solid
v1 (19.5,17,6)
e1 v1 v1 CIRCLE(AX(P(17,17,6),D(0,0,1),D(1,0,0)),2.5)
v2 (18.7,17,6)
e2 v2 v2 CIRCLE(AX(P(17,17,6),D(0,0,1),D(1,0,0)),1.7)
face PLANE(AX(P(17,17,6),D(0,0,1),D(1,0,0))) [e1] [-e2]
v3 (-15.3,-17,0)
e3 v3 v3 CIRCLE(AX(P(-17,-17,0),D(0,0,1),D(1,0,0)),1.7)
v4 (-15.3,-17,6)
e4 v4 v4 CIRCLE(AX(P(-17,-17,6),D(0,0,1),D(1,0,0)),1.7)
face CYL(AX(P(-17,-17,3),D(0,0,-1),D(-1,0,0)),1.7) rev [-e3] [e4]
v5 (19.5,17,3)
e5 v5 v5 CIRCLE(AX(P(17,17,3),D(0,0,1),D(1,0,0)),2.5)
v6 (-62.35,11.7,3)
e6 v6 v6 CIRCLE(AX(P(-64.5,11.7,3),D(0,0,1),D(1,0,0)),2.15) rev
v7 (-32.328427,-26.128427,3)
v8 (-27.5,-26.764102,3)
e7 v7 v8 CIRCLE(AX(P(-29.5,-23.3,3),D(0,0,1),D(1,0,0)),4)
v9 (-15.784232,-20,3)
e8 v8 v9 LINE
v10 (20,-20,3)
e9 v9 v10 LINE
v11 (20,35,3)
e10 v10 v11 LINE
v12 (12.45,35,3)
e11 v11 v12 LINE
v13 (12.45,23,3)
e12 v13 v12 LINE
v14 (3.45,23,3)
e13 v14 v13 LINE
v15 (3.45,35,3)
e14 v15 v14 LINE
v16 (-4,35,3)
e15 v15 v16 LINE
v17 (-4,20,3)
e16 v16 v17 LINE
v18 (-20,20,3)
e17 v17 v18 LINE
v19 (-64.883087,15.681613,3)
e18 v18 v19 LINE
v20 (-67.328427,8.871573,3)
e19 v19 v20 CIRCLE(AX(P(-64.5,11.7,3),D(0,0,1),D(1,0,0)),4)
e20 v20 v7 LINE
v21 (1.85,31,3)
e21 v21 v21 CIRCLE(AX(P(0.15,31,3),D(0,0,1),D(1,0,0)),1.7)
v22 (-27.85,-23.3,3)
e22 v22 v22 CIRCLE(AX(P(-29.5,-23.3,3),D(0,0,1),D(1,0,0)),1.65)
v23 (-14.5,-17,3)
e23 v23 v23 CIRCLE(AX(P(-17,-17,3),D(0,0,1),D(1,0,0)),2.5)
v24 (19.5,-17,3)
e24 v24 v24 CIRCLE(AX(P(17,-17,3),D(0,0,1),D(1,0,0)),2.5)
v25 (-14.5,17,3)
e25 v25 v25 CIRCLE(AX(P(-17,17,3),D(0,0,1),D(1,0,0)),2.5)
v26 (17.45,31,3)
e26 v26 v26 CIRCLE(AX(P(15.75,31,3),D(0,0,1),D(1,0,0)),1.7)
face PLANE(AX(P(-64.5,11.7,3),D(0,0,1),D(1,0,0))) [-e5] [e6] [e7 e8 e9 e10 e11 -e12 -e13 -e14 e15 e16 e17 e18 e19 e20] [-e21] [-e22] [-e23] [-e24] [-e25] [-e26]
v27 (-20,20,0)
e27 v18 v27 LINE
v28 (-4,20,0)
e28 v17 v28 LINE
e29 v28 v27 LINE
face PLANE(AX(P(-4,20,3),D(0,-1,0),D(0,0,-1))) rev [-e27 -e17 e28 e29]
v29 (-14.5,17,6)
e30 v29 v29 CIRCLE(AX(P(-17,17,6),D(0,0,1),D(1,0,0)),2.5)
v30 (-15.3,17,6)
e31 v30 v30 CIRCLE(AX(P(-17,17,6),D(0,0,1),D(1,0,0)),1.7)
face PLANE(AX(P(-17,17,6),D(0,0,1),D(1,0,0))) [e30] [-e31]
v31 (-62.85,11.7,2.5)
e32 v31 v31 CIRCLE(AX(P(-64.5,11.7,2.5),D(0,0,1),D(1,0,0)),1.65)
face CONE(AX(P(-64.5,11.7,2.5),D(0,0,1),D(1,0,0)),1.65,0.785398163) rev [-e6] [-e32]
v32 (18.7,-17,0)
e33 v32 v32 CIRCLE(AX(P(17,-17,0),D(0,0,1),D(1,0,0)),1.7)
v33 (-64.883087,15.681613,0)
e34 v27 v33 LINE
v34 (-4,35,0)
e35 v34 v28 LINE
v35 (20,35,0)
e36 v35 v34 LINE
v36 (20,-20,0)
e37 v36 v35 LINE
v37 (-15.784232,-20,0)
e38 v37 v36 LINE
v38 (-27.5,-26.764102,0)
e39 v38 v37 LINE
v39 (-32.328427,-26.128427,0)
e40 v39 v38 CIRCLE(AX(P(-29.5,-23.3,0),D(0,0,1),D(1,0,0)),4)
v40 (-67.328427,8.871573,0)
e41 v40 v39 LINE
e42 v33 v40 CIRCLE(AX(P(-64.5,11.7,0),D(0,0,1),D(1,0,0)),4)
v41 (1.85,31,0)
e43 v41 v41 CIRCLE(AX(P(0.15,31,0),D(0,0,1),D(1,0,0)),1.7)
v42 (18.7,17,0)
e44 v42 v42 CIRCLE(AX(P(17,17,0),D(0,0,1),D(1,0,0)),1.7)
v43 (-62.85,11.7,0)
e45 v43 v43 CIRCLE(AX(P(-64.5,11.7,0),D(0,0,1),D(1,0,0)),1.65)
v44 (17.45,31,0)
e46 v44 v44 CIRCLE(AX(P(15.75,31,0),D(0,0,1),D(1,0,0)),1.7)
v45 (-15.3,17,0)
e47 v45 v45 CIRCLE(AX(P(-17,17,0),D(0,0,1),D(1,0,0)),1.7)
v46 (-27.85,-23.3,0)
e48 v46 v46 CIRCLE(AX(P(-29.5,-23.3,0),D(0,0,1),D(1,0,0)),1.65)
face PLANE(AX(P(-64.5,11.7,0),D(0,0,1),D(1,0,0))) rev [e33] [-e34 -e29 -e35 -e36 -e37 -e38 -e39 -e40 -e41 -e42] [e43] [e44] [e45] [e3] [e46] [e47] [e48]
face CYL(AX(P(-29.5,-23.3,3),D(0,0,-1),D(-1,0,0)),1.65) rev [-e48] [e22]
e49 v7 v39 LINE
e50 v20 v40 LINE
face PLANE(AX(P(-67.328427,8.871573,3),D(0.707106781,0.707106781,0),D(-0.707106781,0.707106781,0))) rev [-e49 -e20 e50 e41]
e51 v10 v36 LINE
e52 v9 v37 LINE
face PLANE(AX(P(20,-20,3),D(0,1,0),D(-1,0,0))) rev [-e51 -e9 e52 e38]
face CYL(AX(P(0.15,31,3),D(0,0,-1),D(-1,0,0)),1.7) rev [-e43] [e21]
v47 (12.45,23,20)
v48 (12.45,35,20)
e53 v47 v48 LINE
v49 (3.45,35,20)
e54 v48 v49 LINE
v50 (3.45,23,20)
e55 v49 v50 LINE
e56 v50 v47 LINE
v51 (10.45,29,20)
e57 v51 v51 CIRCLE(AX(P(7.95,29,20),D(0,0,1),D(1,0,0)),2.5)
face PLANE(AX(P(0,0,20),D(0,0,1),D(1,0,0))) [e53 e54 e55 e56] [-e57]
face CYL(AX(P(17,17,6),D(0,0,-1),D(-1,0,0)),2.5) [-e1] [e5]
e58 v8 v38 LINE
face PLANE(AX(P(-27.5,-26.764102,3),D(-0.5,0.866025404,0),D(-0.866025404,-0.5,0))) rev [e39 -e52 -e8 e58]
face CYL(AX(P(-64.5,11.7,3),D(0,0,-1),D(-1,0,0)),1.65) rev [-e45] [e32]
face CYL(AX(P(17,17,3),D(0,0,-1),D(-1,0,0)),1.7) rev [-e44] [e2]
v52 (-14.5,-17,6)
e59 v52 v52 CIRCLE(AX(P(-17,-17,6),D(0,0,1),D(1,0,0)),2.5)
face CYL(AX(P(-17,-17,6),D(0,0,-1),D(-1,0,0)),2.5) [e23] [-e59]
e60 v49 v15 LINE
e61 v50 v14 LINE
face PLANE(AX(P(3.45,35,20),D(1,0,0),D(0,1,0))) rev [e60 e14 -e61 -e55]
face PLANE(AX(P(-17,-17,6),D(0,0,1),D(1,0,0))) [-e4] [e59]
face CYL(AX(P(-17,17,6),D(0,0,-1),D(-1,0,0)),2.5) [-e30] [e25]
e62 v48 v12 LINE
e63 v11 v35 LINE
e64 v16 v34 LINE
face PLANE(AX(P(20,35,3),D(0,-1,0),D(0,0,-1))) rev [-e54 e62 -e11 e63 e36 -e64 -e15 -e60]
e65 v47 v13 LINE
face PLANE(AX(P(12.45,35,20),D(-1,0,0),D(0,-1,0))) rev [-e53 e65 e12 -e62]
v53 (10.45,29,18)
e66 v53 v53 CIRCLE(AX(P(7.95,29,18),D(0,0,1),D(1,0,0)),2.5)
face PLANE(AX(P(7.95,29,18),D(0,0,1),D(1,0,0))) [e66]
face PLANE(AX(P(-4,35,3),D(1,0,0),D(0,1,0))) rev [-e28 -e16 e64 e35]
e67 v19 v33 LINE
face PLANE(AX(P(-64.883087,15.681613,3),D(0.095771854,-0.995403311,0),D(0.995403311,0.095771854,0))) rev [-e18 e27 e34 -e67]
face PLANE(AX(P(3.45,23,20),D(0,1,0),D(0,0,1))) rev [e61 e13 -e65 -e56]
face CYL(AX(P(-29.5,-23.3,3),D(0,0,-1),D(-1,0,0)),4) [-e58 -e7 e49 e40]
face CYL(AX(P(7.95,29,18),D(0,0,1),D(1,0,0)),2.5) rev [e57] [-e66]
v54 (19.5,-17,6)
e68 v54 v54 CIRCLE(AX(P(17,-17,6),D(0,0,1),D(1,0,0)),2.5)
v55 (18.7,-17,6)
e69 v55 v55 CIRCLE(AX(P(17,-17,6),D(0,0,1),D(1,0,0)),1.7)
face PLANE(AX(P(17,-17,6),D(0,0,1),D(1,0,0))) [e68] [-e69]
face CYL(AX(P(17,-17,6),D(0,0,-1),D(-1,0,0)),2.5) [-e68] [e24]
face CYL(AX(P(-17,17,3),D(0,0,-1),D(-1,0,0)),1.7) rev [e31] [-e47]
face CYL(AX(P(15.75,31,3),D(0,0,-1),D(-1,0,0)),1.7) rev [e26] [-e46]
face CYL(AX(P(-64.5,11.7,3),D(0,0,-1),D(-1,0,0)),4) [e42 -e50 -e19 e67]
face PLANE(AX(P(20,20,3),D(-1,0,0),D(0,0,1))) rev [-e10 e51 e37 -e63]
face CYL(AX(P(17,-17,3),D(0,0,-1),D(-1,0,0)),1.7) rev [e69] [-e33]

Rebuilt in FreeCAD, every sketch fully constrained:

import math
import FreeCAD as App
import Part
import Sketcher
from FreeCAD import Vector
Q = App.Units.Quantity


def edges_at(feature, points):
    """Names of the edges that pass closest to the given points."""
    edges = feature.Shape.Edges
    near = lambda p: min(range(len(edges)), key=lambda i: edges[i].distToShape(Part.Vertex(*p))[0])
    return sorted({f"Edge{near(p) + 1}" for p in points})


def add_polygon(sketch, points):
    """Adds a closed chain of lines whose ends are joined by coincident constraints."""
    first, n = sketch.GeometryCount, len(points)
    for a, b in zip(points, points[1:] + points[:1]):
        sketch.addGeometry(Part.LineSegment(App.Vector(*a, 0), App.Vector(*b, 0)), False)
    for i in range(n):
        sketch.addConstraint(Sketcher.Constraint("Coincident", first + i, 2, first + (i + 1) % n, 1))

doc = App.newDocument("Part")
params = doc.addObject("Spreadsheet::Sheet", "Params")
for row, (alias, value) in enumerate([
    ("sketch1_radius", "4 mm"),
    ("sketch1_diameter", "3.4 mm"),
    ("sketch1_diameter2", "3.3 mm"),
    ("sketch1_width", "24 mm"),
    ("sketch1_width2", "16 mm"),
    ("pad1_length", "3 mm"),
    ("chamfer_size", "0.5 mm"),
    ("sketch2_width", "9 mm"),
    ("sketch2_height", "12 mm"),
    ("pad2_length", "17 mm"),
    ("sketch3_diameter", "5 mm"),
    ("pocket1_length", "2 mm"),
    ("sketch4_diameter", "5 mm"),
    ("sketch4_diameter2", "3.4 mm"),
    ("pad3_length", "3 mm"),
], start=1):
    params.set(f"A{row}", alias)
    params.set(f"B{row}", "=" + value)
    params.setAlias(f"B{row}", alias)

body = doc.addObject("PartDesign::Body", "Body")

# Sketch on XY plane
sketch1 = body.newObject("Sketcher::SketchObject", "Sketch")
sketch1.AttachmentSupport = (doc.getObject("XY_Plane"), [""])
sketch1.MapMode = "FlatFace"
sketch1.addGeometry([
    Part.LineSegment(Vector(-15.784232, -20, 0), Vector(20, -20, 0)),  # 0
    Part.LineSegment(Vector(20, -20, 0), Vector(20, 35, 0)),  # 1
    Part.LineSegment(Vector(20, 35, 0), Vector(-4, 35, 0)),  # 2
    Part.LineSegment(Vector(-4, 35, 0), Vector(-4, 20, 0)),  # 3
    Part.LineSegment(Vector(-4, 20, 0), Vector(-20, 20, 0)),  # 4
    Part.LineSegment(Vector(-20, 20, 0), Vector(-64.883087, 15.681613, 0)),  # 5
    Part.ArcOfCircle(Part.Circle(Vector(-64.5, 11.7, 0), Vector(0, 0, 1), 4), math.radians(95.495746), math.radians(225)),  # 6
    Part.LineSegment(Vector(-67.328427, 8.871573, 0), Vector(-32.328427, -26.128427, 0)),  # 7
    Part.ArcOfCircle(Part.Circle(Vector(-29.5, -23.3, 0), Vector(0, 0, 1), 4), math.radians(-135), math.radians(-60)),  # 8
    Part.LineSegment(Vector(-27.5, -26.764102, 0), Vector(-15.784232, -20, 0)),  # 9
    Part.Circle(Vector(17, -17, 0), Vector(0, 0, 1), 1.7),  # 10
    Part.Circle(Vector(-17, -17, 0), Vector(0, 0, 1), 1.7),  # 11
    Part.Circle(Vector(-29.5, -23.3, 0), Vector(0, 0, 1), 1.65),  # 12
    Part.Circle(Vector(17, 17, 0), Vector(0, 0, 1), 1.7),  # 13
    Part.Circle(Vector(-17, 17, 0), Vector(0, 0, 1), 1.7),  # 14
    Part.Circle(Vector(15.75, 31, 0), Vector(0, 0, 1), 1.7),  # 15
    Part.Circle(Vector(0.15, 31, 0), Vector(0, 0, 1), 1.7),  # 16
    Part.Circle(Vector(-64.5, 11.7, 0), Vector(0, 0, 1), 1.65),  # 17
], False)
sketch1.addConstraint([
    Sketcher.Constraint("Coincident", 0, 2, 1, 1),
    Sketcher.Constraint("Coincident", 1, 2, 2, 1),
    Sketcher.Constraint("Coincident", 2, 2, 3, 1),
    Sketcher.Constraint("Coincident", 3, 2, 4, 1),
    Sketcher.Constraint("Coincident", 4, 2, 5, 1),
    Sketcher.Constraint("Tangent", 5, 2, 6, 1),
    Sketcher.Constraint("Tangent", 6, 2, 7, 1),
    Sketcher.Constraint("Tangent", 7, 2, 8, 1),
    Sketcher.Constraint("Tangent", 8, 2, 9, 1),
    Sketcher.Constraint("Coincident", 9, 2, 0, 1),
    Sketcher.Constraint("Horizontal", 0),
    Sketcher.Constraint("Vertical", 1),
    Sketcher.Constraint("Horizontal", 2),
    Sketcher.Constraint("Vertical", 3),
    Sketcher.Constraint("Horizontal", 4),
    Sketcher.Constraint("Coincident", 12, 3, 8, 3),
    Sketcher.Constraint("Coincident", 17, 3, 6, 3),
    Sketcher.Constraint("Equal", 6, 8),
    Sketcher.Constraint("Equal", 10, 11),
    Sketcher.Constraint("Equal", 11, 13),
    Sketcher.Constraint("Equal", 13, 14),
    Sketcher.Constraint("Equal", 14, 15),
    Sketcher.Constraint("Equal", 15, 16),
    Sketcher.Constraint("Equal", 12, 17),
    Sketcher.Constraint("Symmetric", 11, 3, 13, 3, -1, 1),
    Sketcher.Constraint("Symmetric", 10, 3, 14, 3, -1, 1),
    Sketcher.Constraint("Symmetric", 0, 2, 4, 2, -1, 1),
    Sketcher.Constraint("Symmetric", 10, 3, 11, 3, -2),
    Sketcher.Constraint("Horizontal", 15, 3, 16, 3),
    Sketcher.Constraint("Radius", 6, 4.0),
    Sketcher.Constraint("Diameter", 10, 3.4),
    Sketcher.Constraint("Diameter", 12, 3.3),
    Sketcher.Constraint("DistanceX", 2, 2, 2, 1, 24.0),
    Sketcher.Constraint("DistanceX", 4, 2, 4, 1, 16.0),
    Sketcher.Constraint("DistanceY", 1, 1, 1, 2, 55.0),
    Sketcher.Constraint("DistanceY", 3, 2, 3, 1, 15.0),
    Sketcher.Constraint("Angle", 7, Q("-45 deg")),
    Sketcher.Constraint("Angle", 9, Q("30 deg")),
    Sketcher.Constraint("DistanceX", -1, 1, 10, 3, 17.0),
    Sketcher.Constraint("DistanceY", 10, 3, -1, 1, 17.0),
    Sketcher.Constraint("DistanceY", -1, 1, 15, 3, 31.0),
    Sketcher.Constraint("DistanceX", 6, 3, 8, 3, 35.0),
    Sketcher.Constraint("DistanceX", 6, 3, -1, 1, 64.5),
    Sketcher.Constraint("DistanceY", -1, 1, 6, 3, 11.7),
    Sketcher.Constraint("DistanceX", 16, 3, 15, 3, 15.6),
    Sketcher.Constraint("DistanceX", -1, 1, 15, 3, 15.75),
])
sketch1.setExpression("Constraints[29]", "Params.sketch1_radius")
sketch1.setExpression("Constraints[30]", "Params.sketch1_diameter")
sketch1.setExpression("Constraints[31]", "Params.sketch1_diameter2")
sketch1.setExpression("Constraints[32]", "Params.sketch1_width")
sketch1.setExpression("Constraints[33]", "Params.sketch1_width2")
pad1 = body.newObject("PartDesign::Pad", "Pad")
pad1.Profile = sketch1
pad1.setExpression("Length", "Params.pad1_length")
doc.recompute()

chamfer = body.newObject("PartDesign::Chamfer", "Chamfer")
chamfer.Base = (pad1, edges_at(pad1, [(-66.15, 11.7, 3)]))
chamfer.setExpression("Size", "Params.chamfer_size")

# Sketch on XY plane
sketch2 = body.newObject("Sketcher::SketchObject", "Sketch001")
sketch2.AttachmentSupport = (doc.getObject("XY_Plane"), [""])
sketch2.MapMode = "FlatFace"
sketch2.AttachmentOffset = App.Placement(Vector(0, 0, 3), App.Rotation())
add_polygon(sketch2, [(3.45, 35), (3.45, 23), (12.45, 23), (12.45, 35)])  # lines 0-3
sketch2.addConstraint([
    Sketcher.Constraint("Vertical", 0),
    Sketcher.Constraint("Horizontal", 1),
    Sketcher.Constraint("Vertical", 2),
    Sketcher.Constraint("Horizontal", 3),
    Sketcher.Constraint("DistanceX", 1, 1, 1, 2, 9.0),
    Sketcher.Constraint("DistanceY", 0, 2, 0, 1, 12.0),
    Sketcher.Constraint("DistanceY", -1, 1, 0, 2, 23.0),
    Sketcher.Constraint("DistanceX", -1, 1, 0, 2, 3.45),
])
sketch2.setExpression("Constraints[8]", "Params.sketch2_width")
sketch2.setExpression("Constraints[9]", "Params.sketch2_height")
pad2 = body.newObject("PartDesign::Pad", "Pad001")
pad2.Profile = sketch2
pad2.setExpression("Length", "Params.pad2_length")

# Sketch on XY plane
sketch3 = body.newObject("Sketcher::SketchObject", "Sketch002")
sketch3.AttachmentSupport = (doc.getObject("XY_Plane"), [""])
sketch3.MapMode = "FlatFace"
sketch3.AttachmentOffset = App.Placement(Vector(0, 0, 20), App.Rotation())
sketch3.addGeometry(Part.Circle(Vector(7.95, 29, 0), Vector(0, 0, 1), 2.5), False)
sketch3.addConstraint([
    Sketcher.Constraint("Diameter", 0, 5.0),
    Sketcher.Constraint("DistanceY", -1, 1, 0, 3, 29.0),
    Sketcher.Constraint("DistanceX", -1, 1, 0, 3, 7.95),
])
sketch3.setExpression("Constraints[0]", "Params.sketch3_diameter")
pocket1 = body.newObject("PartDesign::Pocket", "Pocket")
pocket1.Profile = sketch3
pocket1.setExpression("Length", "Params.pocket1_length")

# Sketch on XY plane
sketch4 = body.newObject("Sketcher::SketchObject", "Sketch003")
sketch4.AttachmentSupport = (doc.getObject("XY_Plane"), [""])
sketch4.MapMode = "FlatFace"
sketch4.AttachmentOffset = App.Placement(Vector(0, 0, 3), App.Rotation())
sketch4.addGeometry([
    Part.Circle(Vector(-17, 17, 0), Vector(0, 0, 1), 2.5),  # 0
    Part.Circle(Vector(-17, 17, 0), Vector(0, 0, 1), 1.7),  # 1
    Part.Circle(Vector(17, 17, 0), Vector(0, 0, 1), 2.5),  # 2
    Part.Circle(Vector(17, 17, 0), Vector(0, 0, 1), 1.7),  # 3
    Part.Circle(Vector(-17, -17, 0), Vector(0, 0, 1), 2.5),  # 4
    Part.Circle(Vector(-17, -17, 0), Vector(0, 0, 1), 1.7),  # 5
    Part.Circle(Vector(17, -17, 0), Vector(0, 0, 1), 2.5),  # 6
    Part.Circle(Vector(17, -17, 0), Vector(0, 0, 1), 1.7),  # 7
], False)
sketch4.addConstraint([
    Sketcher.Constraint("Coincident", 1, 3, 0, 3),
    Sketcher.Constraint("Coincident", 3, 3, 2, 3),
    Sketcher.Constraint("Coincident", 5, 3, 4, 3),
    Sketcher.Constraint("Coincident", 7, 3, 6, 3),
    Sketcher.Constraint("Equal", 0, 2),
    Sketcher.Constraint("Equal", 1, 3),
    Sketcher.Constraint("Equal", 2, 4),
    Sketcher.Constraint("Equal", 3, 5),
    Sketcher.Constraint("Equal", 4, 6),
    Sketcher.Constraint("Equal", 5, 7),
    Sketcher.Constraint("Symmetric", 2, 3, 4, 3, -1, 1),
    Sketcher.Constraint("Symmetric", 0, 3, 6, 3, -1, 1),
    Sketcher.Constraint("Symmetric", 0, 3, 2, 3, -2),
    Sketcher.Constraint("Diameter", 0, 5.0),
    Sketcher.Constraint("Diameter", 1, 3.4),
    Sketcher.Constraint("DistanceX", 0, 3, -1, 1, 17.0),
    Sketcher.Constraint("DistanceY", -1, 1, 0, 3, 17.0),
])
sketch4.setExpression("Constraints[13]", "Params.sketch4_diameter")
sketch4.setExpression("Constraints[14]", "Params.sketch4_diameter2")
pad3 = body.newObject("PartDesign::Pad", "Pad002")
pad3.Profile = sketch4
pad3.setExpression("Length", "Params.pad3_length")

doc.recompute()
